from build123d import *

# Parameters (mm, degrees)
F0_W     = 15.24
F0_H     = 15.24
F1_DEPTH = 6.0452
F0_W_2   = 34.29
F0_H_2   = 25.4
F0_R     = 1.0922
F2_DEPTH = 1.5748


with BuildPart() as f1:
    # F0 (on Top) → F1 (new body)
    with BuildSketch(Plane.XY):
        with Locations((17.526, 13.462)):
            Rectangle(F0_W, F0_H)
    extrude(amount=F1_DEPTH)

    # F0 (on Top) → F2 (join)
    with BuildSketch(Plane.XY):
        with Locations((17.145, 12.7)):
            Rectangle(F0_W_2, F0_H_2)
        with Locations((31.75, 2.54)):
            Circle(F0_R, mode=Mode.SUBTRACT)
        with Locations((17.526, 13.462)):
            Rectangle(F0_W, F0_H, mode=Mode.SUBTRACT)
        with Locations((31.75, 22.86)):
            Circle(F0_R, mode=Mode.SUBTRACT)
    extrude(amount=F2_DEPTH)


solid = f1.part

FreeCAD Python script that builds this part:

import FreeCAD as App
import Part
import Sketcher
from FreeCAD import Vector
Q = App.Units.Quantity


def add_polygon(sketch, points):
    """Adds a closed chain of lines whose ends are joined by coincident constraints."""
    first, n = sketch.GeometryCount, len(points)
    for a, b in zip(points, points[1:] + points[:1]):
        sketch.addGeometry(Part.LineSegment(App.Vector(*a, 0), App.Vector(*b, 0)), False)
    for i in range(n):
        sketch.addConstraint(Sketcher.Constraint("Coincident", first + i, 2, first + (i + 1) % n, 1))

doc = App.newDocument("Part")
params = doc.addObject("Spreadsheet::Sheet", "Params")
for row, (alias, value) in enumerate([
    ("sketch1_width", "0.6 in"),
    ("pad1_length", "0.238 in"),
    ("sketch2_height", "1 in"),
    ("sketch2_diameter", "0.086 in"),
    ("sketch2_width", "0.6 in"),
    ("sketch2_width2", "1.35 in"),
    ("pad2_length", "0.062 in"),
], start=1):
    params.set(f"A{row}", alias)
    params.set(f"B{row}", "=" + value)
    params.setAlias(f"B{row}", alias)

body = doc.addObject("PartDesign::Body", "Body")

sketch1 = body.newObject("Sketcher::SketchObject", "Sketch")
sketch1.AttachmentSupport = (doc.getObject("XY_Plane"), [""])
sketch1.MapMode = "FlatFace"
add_polygon(sketch1, [(10, 21), (10, 6), (25, 6), (25, 21)])
sketch1.addConstraint([
    Sketcher.Constraint("Vertical", 0),
    Sketcher.Constraint("Horizontal", 1),
    Sketcher.Constraint("Vertical", 2),
    Sketcher.Constraint("Horizontal", 3),
    Sketcher.Constraint("Equal", 3, 0),
    Sketcher.Constraint("DistanceX", 1, 1, 1, 2, Q("0.6 in")),
    Sketcher.Constraint("DistanceX", -1, 1, 0, 2, Q("0.39 in")),
    Sketcher.Constraint("DistanceY", -1, 1, 0, 2, Q("0.23 in")),
])
sketch1.setExpression("Constraints[9]", "Params.sketch1_width")
pad1 = body.newObject("PartDesign::Pad", "Pad")
pad1.Profile = sketch1
pad1.setExpression("Length", "Params.pad1_length")

sketch2 = body.newObject("Sketcher::SketchObject", "Sketch001")
sketch2.AttachmentSupport = (doc.getObject("XY_Plane"), [""])
sketch2.MapMode = "FlatFace"
add_polygon(sketch2, [(0, 25.4), (0, 0), (34.3, 0), (34.3, 25.4)])
sketch2.addGeometry(Part.Circle(Vector(31.8, 2.5, 0), Vector(0, 0, 1), 1.1), False)
add_polygon(sketch2, [(25.1, 5.8), (9.9, 5.8), (9.9, 21.1), (25.1, 21.1)])
sketch2.addGeometry(Part.Circle(Vector(31.8, 22.9, 0), Vector(0, 0, 1), 1.1), False)
sketch2.addConstraint([
    Sketcher.Constraint("Vertical", 0),
    Sketcher.Constraint("Horizontal", 1),
    Sketcher.Constraint("Vertical", 2),
    Sketcher.Constraint("Horizontal", 3),
    Sketcher.Constraint("Horizontal", 5),
    Sketcher.Constraint("Vertical", 6),
    Sketcher.Constraint("Horizontal", 7),
    Sketcher.Constraint("Vertical", 8),
    Sketcher.Constraint("Coincident", 0, 2, -1, 1),
    Sketcher.Constraint("Equal", 4, 9),
    Sketcher.Constraint("Vertical", 4, 3, 9, 3),
    Sketcher.Constraint("Equal", 7, 6),
    Sketcher.Constraint("DistanceY", 0, 2, 0, 1, Q("1 in")),
    Sketcher.Constraint("Diameter", 4, Q("0.086 in")),
    Sketcher.Constraint("DistanceX", 5, 2, 5, 1, Q("0.6 in")),
    Sketcher.Constraint("DistanceX", 1, 1, 1, 2, Q("1.35 in")),
    Sketcher.Constraint("DistanceY", -1, 1, 4, 3, Q("0.1 in")),
    Sketcher.Constraint("DistanceY", -1, 1, 9, 3, Q("0.9 in")),
    Sketcher.Constraint("DistanceX", 4, 3, 1, 2, Q("0.1 in")),
    Sketcher.Constraint("DistanceX", -1, 1, 5, 2, Q("0.39 in")),
    Sketcher.Constraint("DistanceY", -1, 1, 5, 2, Q("0.23 in")),
])
sketch2.setExpression("Constraints[20]", "Params.sketch2_height")
sketch2.setExpression("Constraints[21]", "Params.sketch2_diameter")
sketch2.setExpression("Constraints[22]", "Params.sketch2_width")
sketch2.setExpression("Constraints[23]", "Params.sketch2_width2")
pad2 = body.newObject("PartDesign::Pad", "Pad001")
pad2.Profile = sketch2
pad2.setExpression("Length", "Params.pad2_length")

doc.recompute()
